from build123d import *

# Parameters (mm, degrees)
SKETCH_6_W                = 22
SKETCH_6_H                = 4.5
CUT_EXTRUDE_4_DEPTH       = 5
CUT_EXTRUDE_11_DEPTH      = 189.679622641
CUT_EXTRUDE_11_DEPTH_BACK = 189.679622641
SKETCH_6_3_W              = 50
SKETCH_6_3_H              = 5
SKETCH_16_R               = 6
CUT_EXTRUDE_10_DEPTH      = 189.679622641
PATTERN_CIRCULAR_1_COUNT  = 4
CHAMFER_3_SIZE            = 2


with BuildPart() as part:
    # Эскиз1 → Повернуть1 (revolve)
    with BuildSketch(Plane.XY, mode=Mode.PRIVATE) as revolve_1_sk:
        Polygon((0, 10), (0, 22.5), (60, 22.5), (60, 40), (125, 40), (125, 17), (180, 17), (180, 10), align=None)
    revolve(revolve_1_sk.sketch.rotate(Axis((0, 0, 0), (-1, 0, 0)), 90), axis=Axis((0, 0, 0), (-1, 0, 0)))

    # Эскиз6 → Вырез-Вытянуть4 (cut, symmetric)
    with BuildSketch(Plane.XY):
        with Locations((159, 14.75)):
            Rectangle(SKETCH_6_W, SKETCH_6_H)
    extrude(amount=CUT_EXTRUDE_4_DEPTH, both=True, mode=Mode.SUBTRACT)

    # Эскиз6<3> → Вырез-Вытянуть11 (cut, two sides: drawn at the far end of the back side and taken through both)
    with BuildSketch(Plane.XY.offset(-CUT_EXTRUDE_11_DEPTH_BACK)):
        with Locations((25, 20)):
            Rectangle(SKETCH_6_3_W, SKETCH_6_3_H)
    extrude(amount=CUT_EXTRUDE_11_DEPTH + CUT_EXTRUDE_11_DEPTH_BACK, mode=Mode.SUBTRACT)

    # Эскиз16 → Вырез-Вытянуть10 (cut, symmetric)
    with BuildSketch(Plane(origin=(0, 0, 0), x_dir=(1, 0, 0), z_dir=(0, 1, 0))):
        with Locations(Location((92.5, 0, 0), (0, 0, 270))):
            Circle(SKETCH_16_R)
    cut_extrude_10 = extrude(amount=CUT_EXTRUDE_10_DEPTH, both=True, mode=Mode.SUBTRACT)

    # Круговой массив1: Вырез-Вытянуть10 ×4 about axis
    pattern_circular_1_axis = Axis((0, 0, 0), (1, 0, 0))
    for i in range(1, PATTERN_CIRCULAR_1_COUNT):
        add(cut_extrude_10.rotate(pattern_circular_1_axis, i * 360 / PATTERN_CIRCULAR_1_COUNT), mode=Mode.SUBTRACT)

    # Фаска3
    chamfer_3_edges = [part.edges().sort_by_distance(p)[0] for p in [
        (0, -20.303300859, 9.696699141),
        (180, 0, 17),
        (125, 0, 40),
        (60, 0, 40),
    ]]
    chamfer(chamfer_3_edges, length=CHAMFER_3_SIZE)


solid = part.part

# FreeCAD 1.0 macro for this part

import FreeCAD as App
import Part
import Sketcher

V = App.Vector
Q = App.Units.Quantity


def edges_at(feature, points):
    """Names of the edges that pass closest to the given points."""
    edges = feature.Shape.Edges
    near = lambda p: min(range(len(edges)), key=lambda i: edges[i].distToShape(Part.Vertex(*p))[0])
    return sorted({f"Edge{near(p) + 1}" for p in points})

doc = App.newDocument("Part")
body = doc.addObject("PartDesign::Body", "Body")

# Sketch on XY plane
sketch1 = body.newObject("Sketcher::SketchObject", "Sketch")
sketch1.AttachmentSupport = (doc.getObject("XY_Plane"), [""])
sketch1.MapMode = "FlatFace"
sketch1.addGeometry(Part.LineSegment(V(0, 22, 0), V(0, 10, 0)), False)
sketch1.addGeometry(Part.LineSegment(V(0, 10, 0), V(180, 10, 0)), False)
sketch1.addGeometry(Part.LineSegment(V(180, 10, 0), V(180, 17, 0)), False)
sketch1.addGeometry(Part.LineSegment(V(180, 17, 0), V(125, 17, 0)), False)
sketch1.addGeometry(Part.LineSegment(V(125, 17, 0), V(125, 40, 0)), False)
sketch1.addGeometry(Part.LineSegment(V(125, 40, 0), V(60, 40, 0)), False)
sketch1.addGeometry(Part.LineSegment(V(60, 40, 0), V(60, 22, 0)), False)
sketch1.addGeometry(Part.LineSegment(V(60, 22, 0), V(0, 22, 0)), False)
sketch1.addConstraint(Sketcher.Constraint("Coincident", 0, 2, 1, 1))
sketch1.addConstraint(Sketcher.Constraint("Coincident", 1, 2, 2, 1))
sketch1.addConstraint(Sketcher.Constraint("Coincident", 2, 2, 3, 1))
sketch1.addConstraint(Sketcher.Constraint("Coincident", 3, 2, 4, 1))
sketch1.addConstraint(Sketcher.Constraint("Coincident", 4, 2, 5, 1))
sketch1.addConstraint(Sketcher.Constraint("Coincident", 5, 2, 6, 1))
sketch1.addConstraint(Sketcher.Constraint("Coincident", 6, 2, 7, 1))
sketch1.addConstraint(Sketcher.Constraint("Coincident", 7, 2, 0, 1))
sketch1.addConstraint(Sketcher.Constraint("Vertical", 0))
sketch1.addConstraint(Sketcher.Constraint("Horizontal", 1))
sketch1.addConstraint(Sketcher.Constraint("Vertical", 2))
sketch1.addConstraint(Sketcher.Constraint("Horizontal", 3))
sketch1.addConstraint(Sketcher.Constraint("Vertical", 4))
sketch1.addConstraint(Sketcher.Constraint("Horizontal", 5))
sketch1.addConstraint(Sketcher.Constraint("Vertical", 6))
sketch1.addConstraint(Sketcher.Constraint("Horizontal", 7))
sketch1.addConstraint(Sketcher.Constraint("PointOnObject", 0, 2, -2))
sketch1.addConstraint(Sketcher.Constraint("DistanceX", 1, 1, 1, 2, Q("180 mm")))
sketch1.addConstraint(Sketcher.Constraint("DistanceX", 3, 2, 3, 1, Q("55 mm")))
sketch1.addConstraint(Sketcher.Constraint("DistanceX", 5, 2, 5, 1, Q("65 mm")))
sketch1.addConstraint(Sketcher.Constraint("DistanceY", 2, 1, 2, 2, Q("7 mm")))
sketch1.addConstraint(Sketcher.Constraint("DistanceY", 4, 1, 4, 2, Q("23 mm")))
sketch1.addConstraint(Sketcher.Constraint("DistanceY", 0, 2, 0, 1, Q("12.5 mm")))
sketch1.addConstraint(Sketcher.Constraint("DistanceY", -1, 1, 0, 2, Q("10 mm")))
revolution = body.newObject("PartDesign::Revolution", "Revolution")
revolution.Profile = sketch1
revolution.ReferenceAxis = (sketch1, ["H_Axis"])
revolution.Angle = 360

# Sketch on XY plane
sketch2 = body.newObject("Sketcher::SketchObject", "Sketch001")
sketch2.AttachmentSupport = (doc.getObject("XY_Plane"), [""])
sketch2.MapMode = "FlatFace"
sketch2.addGeometry(Part.LineSegment(V(148, 17, 0), V(148, 12.5, 0)), False)
sketch2.addGeometry(Part.LineSegment(V(148, 12.5, 0), V(170, 12.5, 0)), False)
sketch2.addGeometry(Part.LineSegment(V(170, 12.5, 0), V(170, 17, 0)), False)
sketch2.addGeometry(Part.LineSegment(V(170, 17, 0), V(148, 17, 0)), False)
sketch2.addConstraint(Sketcher.Constraint("Coincident", 0, 2, 1, 1))
sketch2.addConstraint(Sketcher.Constraint("Coincident", 1, 2, 2, 1))
sketch2.addConstraint(Sketcher.Constraint("Coincident", 2, 2, 3, 1))
sketch2.addConstraint(Sketcher.Constraint("Coincident", 3, 2, 0, 1))
sketch2.addConstraint(Sketcher.Constraint("Vertical", 0))
sketch2.addConstraint(Sketcher.Constraint("Horizontal", 1))
sketch2.addConstraint(Sketcher.Constraint("Vertical", 2))
sketch2.addConstraint(Sketcher.Constraint("Horizontal", 3))
sketch2.addConstraint(Sketcher.Constraint("DistanceX", 1, 1, 1, 2, Q("22 mm")))
sketch2.addConstraint(Sketcher.Constraint("DistanceY", 0, 2, 0, 1, Q("4.5 mm")))
sketch2.addConstraint(Sketcher.Constraint("DistanceX", -1, 1, 0, 2, Q("148 mm")))
sketch2.addConstraint(Sketcher.Constraint("DistanceY", -1, 1, 2, 2, Q("17 mm")))
pocket1 = body.newObject("PartDesign::Pocket", "Pocket")
pocket1.Profile = sketch2
pocket1.Length = 10
pocket1.Midplane = True

# Sketch on XY plane
sketch3 = body.newObject("Sketcher::SketchObject", "Sketch002")
sketch3.AttachmentSupport = (doc.getObject("XY_Plane"), [""])
sketch3.MapMode = "FlatFace"
sketch3.addGeometry(Part.LineSegment(V(0, 22, 0), V(0, 18, 0)), False)
sketch3.addGeometry(Part.LineSegment(V(0, 18, 0), V(50, 18, 0)), False)
sketch3.addGeometry(Part.LineSegment(V(50, 18, 0), V(50, 22, 0)), False)
sketch3.addGeometry(Part.LineSegment(V(50, 22, 0), V(0, 22, 0)), False)
sketch3.addConstraint(Sketcher.Constraint("Coincident", 0, 2, 1, 1))
sketch3.addConstraint(Sketcher.Constraint("Coincident", 1, 2, 2, 1))
sketch3.addConstraint(Sketcher.Constraint("Coincident", 2, 2, 3, 1))
sketch3.addConstraint(Sketcher.Constraint("Coincident", 3, 2, 0, 1))
sketch3.addConstraint(Sketcher.Constraint("Vertical", 0))
sketch3.addConstraint(Sketcher.Constraint("Horizontal", 1))
sketch3.addConstraint(Sketcher.Constraint("Vertical", 2))
sketch3.addConstraint(Sketcher.Constraint("Horizontal", 3))
sketch3.addConstraint(Sketcher.Constraint("PointOnObject", 0, 2, -2))
sketch3.addConstraint(Sketcher.Constraint("DistanceX", 1, 1, 1, 2, Q("50 mm")))
sketch3.addConstraint(Sketcher.Constraint("DistanceY", 0, 2, 0, 1, Q("5 mm")))
sketch3.addConstraint(Sketcher.Constraint("DistanceY", -1, 1, 0, 2, Q("17.5 mm")))
pocket2 = body.newObject("PartDesign::Pocket", "Pocket001")
pocket2.Profile = sketch3
pocket2.Type = "ThroughAll"
pocket2.Midplane = True

# Sketch on XZ plane
sketch4 = body.newObject("Sketcher::SketchObject", "Sketch003")
sketch4.AttachmentSupport = (doc.getObject("XZ_Plane"), [""])
sketch4.MapMode = "FlatFace"
sketch4.addGeometry(Part.Circle(V(92, 0, 0), V(0, 0, 1), 6), False)
sketch4.addConstraint(Sketcher.Constraint("PointOnObject", 0, 3, -1))
sketch4.addConstraint(Sketcher.Constraint("Diameter", 0, Q("12 mm")))
sketch4.addConstraint(Sketcher.Constraint("DistanceX", -1, 1, 0, 3, Q("92.5 mm")))
pocket3 = body.newObject("PartDesign::Pocket", "Pocket002")
pocket3.Profile = sketch4
pocket3.Length = 379.359245
pocket3.Midplane = True
doc.recompute()

polarpattern = body.newObject("PartDesign::PolarPattern", "PolarPattern")
polarpattern.Originals = [pocket3]
polarpattern.Axis = (doc.getObject("X_Axis"), [""])
polarpattern.Angle = 360
polarpattern.Occurrences = 4
body.Tip = polarpattern
doc.recompute()

chamfer = body.newObject("PartDesign::Chamfer", "Chamfer")
chamfer.Base = (polarpattern, edges_at(polarpattern, [
    (0, -20.303, 9.697),
    (180, 0, 17),
    (125, 0, 40),
    (60, 0, 40),
]))
chamfer.Size = 2

doc.recompute()
